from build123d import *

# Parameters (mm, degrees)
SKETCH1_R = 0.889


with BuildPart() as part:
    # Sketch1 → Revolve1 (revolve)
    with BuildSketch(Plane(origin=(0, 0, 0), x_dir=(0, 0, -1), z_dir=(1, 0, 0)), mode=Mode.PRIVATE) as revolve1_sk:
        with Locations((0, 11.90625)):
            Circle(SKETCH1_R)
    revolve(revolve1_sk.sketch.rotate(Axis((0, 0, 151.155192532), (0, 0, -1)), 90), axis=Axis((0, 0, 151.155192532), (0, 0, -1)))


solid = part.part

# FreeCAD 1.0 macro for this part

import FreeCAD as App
import Part
import Sketcher
from FreeCAD import Vector
Q = App.Units.Quantity

doc = App.newDocument("Part")
body = doc.addObject("PartDesign::Body", "Body")

# Sketch on YZ plane
sketch1 = body.newObject("Sketcher::SketchObject", "Sketch")
sketch1.AttachmentSupport = (doc.getObject("YZ_Plane"), [""])
sketch1.MapMode = "FlatFace"
sketch1.addGeometry(Part.Circle(Vector(11.9, 0, 0), Vector(0, 0, 1), 0.9), False)
sketch1.addConstraint(Sketcher.Constraint("PointOnObject", 0, 3, -1))
sketch1.addConstraint(Sketcher.Constraint("Diameter", 0, Q("0.07 in")))
sketch1.addConstraint(Sketcher.Constraint("DistanceX", -1, 1, 0, 3, Q("0.46875 in")))
revolution = body.newObject("PartDesign::Revolution", "Revolution")
revolution.Profile = sketch1
revolution.ReferenceAxis = (sketch1, ["V_Axis"])
revolution.Angle = 360

doc.recompute()
